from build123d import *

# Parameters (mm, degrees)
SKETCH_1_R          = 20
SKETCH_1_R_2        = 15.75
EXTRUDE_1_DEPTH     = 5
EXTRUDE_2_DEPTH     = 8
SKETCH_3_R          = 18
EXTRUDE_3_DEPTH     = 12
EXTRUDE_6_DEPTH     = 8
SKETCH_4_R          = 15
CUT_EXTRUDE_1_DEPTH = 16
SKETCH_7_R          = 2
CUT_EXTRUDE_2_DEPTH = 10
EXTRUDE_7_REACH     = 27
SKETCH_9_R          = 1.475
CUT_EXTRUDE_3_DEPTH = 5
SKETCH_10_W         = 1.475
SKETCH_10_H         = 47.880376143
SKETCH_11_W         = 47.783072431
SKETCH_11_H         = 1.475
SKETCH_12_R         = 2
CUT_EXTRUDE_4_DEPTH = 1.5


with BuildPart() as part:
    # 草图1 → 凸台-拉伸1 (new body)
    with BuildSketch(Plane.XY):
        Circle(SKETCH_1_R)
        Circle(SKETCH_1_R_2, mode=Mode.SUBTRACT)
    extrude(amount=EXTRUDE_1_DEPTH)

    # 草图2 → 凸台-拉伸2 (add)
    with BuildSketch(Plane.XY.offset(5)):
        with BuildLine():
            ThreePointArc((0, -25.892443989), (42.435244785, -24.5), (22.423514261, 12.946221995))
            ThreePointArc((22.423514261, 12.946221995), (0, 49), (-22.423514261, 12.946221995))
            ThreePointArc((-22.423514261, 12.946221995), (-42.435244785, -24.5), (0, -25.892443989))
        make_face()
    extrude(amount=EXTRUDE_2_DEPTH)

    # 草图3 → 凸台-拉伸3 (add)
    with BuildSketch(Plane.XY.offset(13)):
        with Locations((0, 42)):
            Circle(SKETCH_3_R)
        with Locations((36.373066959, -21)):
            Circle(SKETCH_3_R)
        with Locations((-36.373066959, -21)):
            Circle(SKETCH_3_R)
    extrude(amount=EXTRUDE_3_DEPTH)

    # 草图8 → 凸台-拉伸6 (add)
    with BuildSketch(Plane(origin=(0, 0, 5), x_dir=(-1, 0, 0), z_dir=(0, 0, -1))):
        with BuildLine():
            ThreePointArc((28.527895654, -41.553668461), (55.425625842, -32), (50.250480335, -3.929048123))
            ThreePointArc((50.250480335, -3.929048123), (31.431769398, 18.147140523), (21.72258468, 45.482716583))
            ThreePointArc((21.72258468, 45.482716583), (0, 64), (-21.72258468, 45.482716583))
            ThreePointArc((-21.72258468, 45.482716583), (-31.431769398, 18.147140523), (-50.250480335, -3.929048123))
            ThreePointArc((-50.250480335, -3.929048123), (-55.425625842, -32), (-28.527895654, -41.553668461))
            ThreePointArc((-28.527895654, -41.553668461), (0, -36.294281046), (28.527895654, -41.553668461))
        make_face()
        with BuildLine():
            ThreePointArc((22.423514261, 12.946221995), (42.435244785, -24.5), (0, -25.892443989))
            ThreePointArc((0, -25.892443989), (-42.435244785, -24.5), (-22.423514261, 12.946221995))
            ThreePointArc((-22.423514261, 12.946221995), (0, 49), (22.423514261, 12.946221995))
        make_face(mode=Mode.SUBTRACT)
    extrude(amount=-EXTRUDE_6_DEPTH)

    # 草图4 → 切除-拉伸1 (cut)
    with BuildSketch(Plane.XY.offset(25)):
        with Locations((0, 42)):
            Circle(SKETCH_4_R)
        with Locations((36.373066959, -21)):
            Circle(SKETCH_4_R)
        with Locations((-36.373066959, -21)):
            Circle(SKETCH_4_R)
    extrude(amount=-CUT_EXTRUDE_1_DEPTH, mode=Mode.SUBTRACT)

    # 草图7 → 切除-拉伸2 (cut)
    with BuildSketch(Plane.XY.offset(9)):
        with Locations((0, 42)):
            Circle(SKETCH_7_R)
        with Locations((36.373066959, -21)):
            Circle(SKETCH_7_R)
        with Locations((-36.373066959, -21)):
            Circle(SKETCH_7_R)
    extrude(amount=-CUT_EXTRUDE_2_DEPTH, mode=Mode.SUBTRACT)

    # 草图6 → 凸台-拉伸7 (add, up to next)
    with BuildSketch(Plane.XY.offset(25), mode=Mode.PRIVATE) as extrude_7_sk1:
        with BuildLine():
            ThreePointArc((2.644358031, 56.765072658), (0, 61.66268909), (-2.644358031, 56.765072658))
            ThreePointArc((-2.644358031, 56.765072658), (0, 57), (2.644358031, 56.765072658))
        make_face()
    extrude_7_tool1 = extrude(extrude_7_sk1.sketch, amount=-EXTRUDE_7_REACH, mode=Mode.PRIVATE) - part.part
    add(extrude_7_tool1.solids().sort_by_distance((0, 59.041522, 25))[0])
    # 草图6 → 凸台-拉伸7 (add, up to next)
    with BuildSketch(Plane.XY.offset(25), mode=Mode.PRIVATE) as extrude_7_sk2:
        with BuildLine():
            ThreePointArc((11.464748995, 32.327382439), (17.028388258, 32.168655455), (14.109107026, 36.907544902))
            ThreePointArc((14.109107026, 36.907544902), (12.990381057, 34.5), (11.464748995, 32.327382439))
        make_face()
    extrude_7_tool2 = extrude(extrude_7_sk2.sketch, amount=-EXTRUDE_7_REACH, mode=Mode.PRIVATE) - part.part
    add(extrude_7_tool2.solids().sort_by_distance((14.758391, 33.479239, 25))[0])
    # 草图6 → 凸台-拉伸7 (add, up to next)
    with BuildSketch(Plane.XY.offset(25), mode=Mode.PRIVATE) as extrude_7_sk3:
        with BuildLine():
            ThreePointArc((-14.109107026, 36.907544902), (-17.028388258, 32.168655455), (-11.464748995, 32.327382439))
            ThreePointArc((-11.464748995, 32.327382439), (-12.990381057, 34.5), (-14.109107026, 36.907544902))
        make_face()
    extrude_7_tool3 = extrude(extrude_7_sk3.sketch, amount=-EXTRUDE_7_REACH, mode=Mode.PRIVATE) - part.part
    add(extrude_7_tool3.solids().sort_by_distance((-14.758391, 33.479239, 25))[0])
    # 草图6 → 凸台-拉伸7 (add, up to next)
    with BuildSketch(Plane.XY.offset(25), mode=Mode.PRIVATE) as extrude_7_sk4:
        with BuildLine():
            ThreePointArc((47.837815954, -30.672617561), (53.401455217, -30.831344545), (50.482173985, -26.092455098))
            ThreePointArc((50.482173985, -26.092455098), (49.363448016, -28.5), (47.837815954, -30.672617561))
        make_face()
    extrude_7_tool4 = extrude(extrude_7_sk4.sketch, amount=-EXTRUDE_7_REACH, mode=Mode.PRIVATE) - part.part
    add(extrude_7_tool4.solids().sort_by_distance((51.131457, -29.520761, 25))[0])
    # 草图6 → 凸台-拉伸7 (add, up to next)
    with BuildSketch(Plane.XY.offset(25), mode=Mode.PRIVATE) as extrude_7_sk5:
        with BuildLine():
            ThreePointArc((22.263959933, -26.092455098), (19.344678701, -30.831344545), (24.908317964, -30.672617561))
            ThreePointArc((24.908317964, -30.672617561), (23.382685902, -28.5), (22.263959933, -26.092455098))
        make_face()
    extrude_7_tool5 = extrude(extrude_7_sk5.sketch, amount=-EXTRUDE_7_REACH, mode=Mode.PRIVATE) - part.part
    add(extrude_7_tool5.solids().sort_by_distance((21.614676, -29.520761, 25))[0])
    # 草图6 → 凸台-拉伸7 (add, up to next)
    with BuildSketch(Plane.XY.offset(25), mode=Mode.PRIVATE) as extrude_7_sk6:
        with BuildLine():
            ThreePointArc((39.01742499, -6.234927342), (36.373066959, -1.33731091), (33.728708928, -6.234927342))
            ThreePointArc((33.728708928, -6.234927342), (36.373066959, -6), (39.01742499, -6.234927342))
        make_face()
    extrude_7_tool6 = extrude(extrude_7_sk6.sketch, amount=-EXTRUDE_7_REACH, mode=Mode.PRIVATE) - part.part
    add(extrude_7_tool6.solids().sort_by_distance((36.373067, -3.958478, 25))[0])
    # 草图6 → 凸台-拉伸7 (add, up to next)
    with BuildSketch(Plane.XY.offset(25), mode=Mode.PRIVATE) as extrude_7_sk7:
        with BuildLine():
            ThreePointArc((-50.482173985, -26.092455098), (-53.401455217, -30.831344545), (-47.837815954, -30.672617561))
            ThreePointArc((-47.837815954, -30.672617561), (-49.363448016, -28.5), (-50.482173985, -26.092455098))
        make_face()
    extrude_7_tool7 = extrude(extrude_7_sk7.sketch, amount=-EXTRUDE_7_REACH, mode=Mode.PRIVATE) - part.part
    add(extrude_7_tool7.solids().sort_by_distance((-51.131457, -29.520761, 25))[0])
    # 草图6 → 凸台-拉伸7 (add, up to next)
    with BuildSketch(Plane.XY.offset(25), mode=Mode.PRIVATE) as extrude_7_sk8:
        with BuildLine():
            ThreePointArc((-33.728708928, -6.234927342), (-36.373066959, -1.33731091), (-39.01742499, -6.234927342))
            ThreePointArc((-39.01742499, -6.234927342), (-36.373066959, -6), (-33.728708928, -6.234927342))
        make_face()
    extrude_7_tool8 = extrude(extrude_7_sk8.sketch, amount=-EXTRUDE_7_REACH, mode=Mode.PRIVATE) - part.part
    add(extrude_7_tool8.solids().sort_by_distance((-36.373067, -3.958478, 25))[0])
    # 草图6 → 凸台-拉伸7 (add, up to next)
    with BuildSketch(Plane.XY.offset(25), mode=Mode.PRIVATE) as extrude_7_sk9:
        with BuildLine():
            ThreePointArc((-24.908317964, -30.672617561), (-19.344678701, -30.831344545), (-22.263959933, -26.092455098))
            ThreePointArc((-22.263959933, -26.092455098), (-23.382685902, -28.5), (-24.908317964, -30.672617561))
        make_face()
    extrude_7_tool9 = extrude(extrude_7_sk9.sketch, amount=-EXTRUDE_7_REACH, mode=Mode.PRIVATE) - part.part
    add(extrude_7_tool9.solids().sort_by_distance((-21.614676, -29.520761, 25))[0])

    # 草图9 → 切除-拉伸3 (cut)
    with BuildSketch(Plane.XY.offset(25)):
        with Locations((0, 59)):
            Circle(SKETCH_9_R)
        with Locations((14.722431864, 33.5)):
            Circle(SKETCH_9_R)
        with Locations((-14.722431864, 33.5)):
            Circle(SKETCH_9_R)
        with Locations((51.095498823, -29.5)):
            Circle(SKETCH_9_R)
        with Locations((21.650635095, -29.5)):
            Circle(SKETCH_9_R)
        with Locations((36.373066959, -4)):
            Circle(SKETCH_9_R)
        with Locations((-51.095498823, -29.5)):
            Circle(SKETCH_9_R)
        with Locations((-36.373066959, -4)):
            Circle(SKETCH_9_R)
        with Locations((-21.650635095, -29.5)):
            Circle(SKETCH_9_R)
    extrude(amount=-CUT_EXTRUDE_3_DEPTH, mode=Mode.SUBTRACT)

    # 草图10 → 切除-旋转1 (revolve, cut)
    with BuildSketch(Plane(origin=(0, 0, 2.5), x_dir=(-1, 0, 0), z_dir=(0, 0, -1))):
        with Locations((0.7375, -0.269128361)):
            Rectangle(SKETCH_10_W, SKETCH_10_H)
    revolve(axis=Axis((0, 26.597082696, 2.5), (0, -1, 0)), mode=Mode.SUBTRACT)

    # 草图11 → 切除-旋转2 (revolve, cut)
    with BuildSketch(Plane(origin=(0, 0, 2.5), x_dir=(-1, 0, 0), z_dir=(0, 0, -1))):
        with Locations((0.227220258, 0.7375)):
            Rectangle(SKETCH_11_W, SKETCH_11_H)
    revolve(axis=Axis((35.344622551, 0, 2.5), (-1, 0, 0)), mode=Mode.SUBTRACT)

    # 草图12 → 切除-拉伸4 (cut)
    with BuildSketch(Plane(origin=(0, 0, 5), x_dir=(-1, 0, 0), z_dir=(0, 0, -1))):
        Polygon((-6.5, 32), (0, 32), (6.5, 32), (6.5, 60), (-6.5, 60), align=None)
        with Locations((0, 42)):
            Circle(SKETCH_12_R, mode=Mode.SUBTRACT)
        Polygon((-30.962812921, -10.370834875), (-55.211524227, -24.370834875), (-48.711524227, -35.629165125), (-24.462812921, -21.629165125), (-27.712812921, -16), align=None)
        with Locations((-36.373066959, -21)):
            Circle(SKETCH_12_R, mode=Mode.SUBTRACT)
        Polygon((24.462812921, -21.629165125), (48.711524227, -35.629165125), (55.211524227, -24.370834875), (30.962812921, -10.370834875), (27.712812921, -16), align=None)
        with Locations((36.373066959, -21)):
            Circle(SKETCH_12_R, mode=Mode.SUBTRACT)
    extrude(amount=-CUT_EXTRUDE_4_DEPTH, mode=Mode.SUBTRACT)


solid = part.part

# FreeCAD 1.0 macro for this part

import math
import FreeCAD as App
import Part
import Sketcher

V = App.Vector
Q = App.Units.Quantity

doc = App.newDocument("Part")
body = doc.addObject("PartDesign::Body", "Body")

sketch1 = doc.addObject("Sketcher::SketchObject", "Sketch")
body.addObject(sketch1)
sketch1.AttachmentSupport = (doc.XY_Plane, [""])
sketch1.MapMode = "FlatFace"
sketch1.addGeometry([
    Part.Circle(V(0, 0, 0), V(0, 0, 1), 20),
    Part.Circle(V(0, 0, 0), V(0, 0, 1), 16),
], False)
sketch1.addConstraint([
    Sketcher.Constraint("Coincident", 0, 3, -1, 1),
    Sketcher.Constraint("Coincident", 1, 3, -1, 1),
    Sketcher.Constraint("Diameter", 0, Q("40 mm")),
    Sketcher.Constraint("Diameter", 1, Q("31.5 mm")),
])
pad1 = doc.addObject("PartDesign::Pad", "Pad")
body.addObject(pad1)
pad1.Profile = sketch1
pad1.Length = 5

sketch2 = doc.addObject("Sketcher::SketchObject", "Sketch001")
body.addObject(sketch2)
sketch2.AttachmentSupport = (doc.XY_Plane, [""])
sketch2.MapMode = "FlatFace"
sketch2.AttachmentOffset = App.Placement(V(0, 0, 5), App.Rotation())
sketch2.addGeometry([
    Part.ArcOfCircle(Part.Circle(V(21, -12, 0), V(0, 0, 1), 25), math.radians(-146), math.radians(86)),
    Part.ArcOfCircle(Part.Circle(V(0, 24, 0), V(0, 0, 1), 25), math.radians(-26), math.radians(206)),
    Part.ArcOfCircle(Part.Circle(V(-21, -12, 0), V(0, 0, 1), 25), math.radians(94), math.radians(326)),
], False)
sketch2.addConstraint([
    Sketcher.Constraint("Coincident", 0, 2, 1, 1),
    Sketcher.Constraint("Coincident", 1, 2, 2, 1),
    Sketcher.Constraint("Coincident", 2, 2, 0, 1),
    Sketcher.Constraint("Equal", 0, 1),
    Sketcher.Constraint("Equal", 1, 2),
    Sketcher.Constraint("Symmetric", 0, 3, 2, 3, -2),
    Sketcher.Constraint("PointOnObject", 1, 3, -2),
    Sketcher.Constraint("Radius", 0, Q("25 mm")),
    Sketcher.Constraint("DistanceY", 0, 3, -1, 1, Q("12 mm")),
    Sketcher.Constraint("DistanceY", -1, 1, 1, 3, Q("24 mm")),
    Sketcher.Constraint("DistanceX", -1, 1, 0, 3, Q("20.78461 mm")),
])
pad2 = doc.addObject("PartDesign::Pad", "Pad001")
body.addObject(pad2)
pad2.Profile = sketch2
pad2.Length = 8

sketch3 = doc.addObject("Sketcher::SketchObject", "Sketch002")
body.addObject(sketch3)
sketch3.AttachmentSupport = (doc.XY_Plane, [""])
sketch3.MapMode = "FlatFace"
sketch3.AttachmentOffset = App.Placement(V(0, 0, 13), App.Rotation())
sketch3.addGeometry([
    Part.Circle(V(0, 42, 0), V(0, 0, 1), 18),
    Part.Circle(V(36, -21, 0), V(0, 0, 1), 18),
    Part.Circle(V(-36, -21, 0), V(0, 0, 1), 18),
], False)
sketch3.addConstraint([
    Sketcher.Constraint("Equal", 0, 1),
    Sketcher.Constraint("Equal", 1, 2),
    Sketcher.Constraint("Symmetric", 1, 3, 2, 3, -2),
    Sketcher.Constraint("PointOnObject", 0, 3, -2),
    Sketcher.Constraint("Diameter", 0, Q("36 mm")),
    Sketcher.Constraint("DistanceY", -1, 1, 0, 3, Q("42 mm")),
    Sketcher.Constraint("DistanceY", 1, 3, -1, 1, Q("21 mm")),
    Sketcher.Constraint("DistanceX", -1, 1, 1, 3, Q("36.373067 mm")),
])
pad3 = doc.addObject("PartDesign::Pad", "Pad002")
body.addObject(pad3)
pad3.Profile = sketch3
pad3.Length = 12

sketch4 = doc.addObject("Sketcher::SketchObject", "Sketch003")
body.addObject(sketch4)
sketch4.AttachmentSupport = (doc.XY_Plane, [""])
sketch4.MapMode = "FlatFace"
sketch4.AttachmentOffset = App.Placement(V(0, 0, 5), App.Rotation())
sketch4.addGeometry([
    Part.ArcOfCircle(Part.Circle(V(-36, -21, 0), V(0, 0, 1), 22), math.radians(129), math.radians(291)),
    Part.ArcOfCircle(Part.Circle(V(-101, 58, 0), V(0, 0, 1), 80), math.radians(-51), math.radians(-9)),
    Part.ArcOfCircle(Part.Circle(V(0, 42, 0), V(0, 0, 1), 22), math.radians(9), math.radians(171)),
    Part.ArcOfCircle(Part.Circle(V(101, 58, 0), V(0, 0, 1), 80), math.radians(-171), math.radians(-129)),
    Part.ArcOfCircle(Part.Circle(V(36, -21, 0), V(0, 0, 1), 22), math.radians(-111), math.radians(51)),
    Part.ArcOfCircle(Part.Circle(V(0, -116, 0), V(0, 0, 1), 80), math.radians(69), math.radians(111)),
    Part.ArcOfCircle(Part.Circle(V(0, 24, 0), V(0, 0, 1), 25), math.radians(-26), math.radians(206)),
    Part.ArcOfCircle(Part.Circle(V(-21, -12, 0), V(0, 0, 1), 25), math.radians(94), math.radians(326)),
    Part.ArcOfCircle(Part.Circle(V(21, -12, 0), V(0, 0, 1), 25), math.radians(-146), math.radians(86)),
], False)
sketch4.addConstraint([
    Sketcher.Constraint("Tangent", 0, 1, 1, 1),
    Sketcher.Constraint("Tangent", 1, 2, 2, 2),
    Sketcher.Constraint("Tangent", 2, 1, 3, 1),
    Sketcher.Constraint("Tangent", 3, 2, 4, 2),
    Sketcher.Constraint("Tangent", 4, 1, 5, 1),
    Sketcher.Constraint("Tangent", 5, 2, 0, 2),
    Sketcher.Constraint("Coincident", 6, 2, 7, 1),
    Sketcher.Constraint("Coincident", 7, 2, 8, 1),
    Sketcher.Constraint("Coincident", 8, 2, 6, 1),
    Sketcher.Constraint("Equal", 0, 2),
    Sketcher.Constraint("Equal", 1, 3),
    Sketcher.Constraint("Equal", 2, 4),
    Sketcher.Constraint("Equal", 3, 5),
    Sketcher.Constraint("Equal", 6, 7),
    Sketcher.Constraint("Equal", 7, 8),
    Sketcher.Constraint("Symmetric", 1, 3, 3, 3, -2),
    Sketcher.Constraint("Symmetric", 7, 3, 8, 3, -2),
    Sketcher.Constraint("PointOnObject", 5, 3, -2),
    Sketcher.Constraint("PointOnObject", 6, 3, -2),
    Sketcher.Constraint("Radius", 0, Q("22 mm")),
    Sketcher.Constraint("Radius", 1, Q("80 mm")),
    Sketcher.Constraint("Radius", 6, Q("25 mm")),
    Sketcher.Constraint("DistanceY", 0, 3, -1, 1, Q("21 mm")),
    Sketcher.Constraint("DistanceY", -1, 1, 2, 3, Q("42 mm")),
    Sketcher.Constraint("DistanceY", -1, 1, 6, 3, Q("24 mm")),
    Sketcher.Constraint("DistanceY", 7, 3, -1, 1, Q("12 mm")),
    Sketcher.Constraint("DistanceX", 1, 3, -1, 1, Q("100.713802 mm")),
    Sketcher.Constraint("DistanceX", 7, 3, -1, 1, Q("20.78461 mm")),
])
pad4 = doc.addObject("PartDesign::Pad", "Pad003")
body.addObject(pad4)
pad4.Profile = sketch4
pad4.Length = 8

sketch5 = doc.addObject("Sketcher::SketchObject", "Sketch004")
body.addObject(sketch5)
sketch5.AttachmentSupport = (doc.XY_Plane, [""])
sketch5.MapMode = "FlatFace"
sketch5.AttachmentOffset = App.Placement(V(0, 0, 25), App.Rotation())
sketch5.addGeometry([
    Part.Circle(V(0, 42, 0), V(0, 0, 1), 15),
    Part.Circle(V(36, -21, 0), V(0, 0, 1), 15),
    Part.Circle(V(-36, -21, 0), V(0, 0, 1), 15),
], False)
sketch5.addConstraint([
    Sketcher.Constraint("Equal", 0, 1),
    Sketcher.Constraint("Equal", 1, 2),
    Sketcher.Constraint("Symmetric", 1, 3, 2, 3, -2),
    Sketcher.Constraint("PointOnObject", 0, 3, -2),
    Sketcher.Constraint("Diameter", 0, Q("30 mm")),
    Sketcher.Constraint("DistanceY", -1, 1, 0, 3, Q("42 mm")),
    Sketcher.Constraint("DistanceY", 1, 3, -1, 1, Q("21 mm")),
    Sketcher.Constraint("DistanceX", -1, 1, 1, 3, Q("36.373067 mm")),
])
pocket1 = doc.addObject("PartDesign::Pocket", "Pocket")
body.addObject(pocket1)
pocket1.Profile = sketch5
pocket1.Length = 16

sketch6 = doc.addObject("Sketcher::SketchObject", "Sketch005")
body.addObject(sketch6)
sketch6.AttachmentSupport = (doc.XY_Plane, [""])
sketch6.MapMode = "FlatFace"
sketch6.AttachmentOffset = App.Placement(V(0, 0, 9), App.Rotation())
sketch6.addGeometry([
    Part.Circle(V(0, 42, 0), V(0, 0, 1), 2),
    Part.Circle(V(36.4, -21, 0), V(0, 0, 1), 2),
    Part.Circle(V(-36.4, -21, 0), V(0, 0, 1), 2),
], False)
sketch6.addConstraint([
    Sketcher.Constraint("Equal", 0, 1),
    Sketcher.Constraint("Equal", 1, 2),
    Sketcher.Constraint("Symmetric", 1, 3, 2, 3, -2),
    Sketcher.Constraint("PointOnObject", 0, 3, -2),
    Sketcher.Constraint("Diameter", 0, Q("4 mm")),
    Sketcher.Constraint("DistanceY", -1, 1, 0, 3, Q("42 mm")),
    Sketcher.Constraint("DistanceY", 1, 3, -1, 1, Q("21 mm")),
    Sketcher.Constraint("DistanceX", -1, 1, 1, 3, Q("36.373067 mm")),
])
pocket2 = doc.addObject("PartDesign::Pocket", "Pocket001")
body.addObject(pocket2)
pocket2.Profile = sketch6
pocket2.Length = 10

sketch7 = doc.addObject("Sketcher::SketchObject", "Sketch006")
body.addObject(sketch7)
sketch7.AttachmentSupport = (doc.XY_Plane, [""])
sketch7.MapMode = "FlatFace"
sketch7.AttachmentOffset = App.Placement(V(0, 0, 25), App.Rotation())
sketch7.addGeometry([
    Part.ArcOfCircle(Part.Circle(V(0, 58.5, 0), V(0, 0, 1), 3.2), math.radians(-33), math.radians(213)),
    Part.ArcOfCircle(Part.Circle(V(0, 42, 0), V(0, 0, 1), 15), math.radians(80), math.radians(100)),
], False)
sketch7.addConstraint([
    Sketcher.Constraint("Coincident", 0, 1, 1, 1),
    Sketcher.Constraint("Coincident", 1, 2, 0, 2),
    Sketcher.Constraint("Symmetric", 0, 1, 1, 2, -2),
    Sketcher.Constraint("Radius", 1, Q("15 mm")),
    Sketcher.Constraint("DistanceY", -1, 1, 1, 3, Q("42 mm")),
    Sketcher.Constraint("DistanceY", -1, 1, 0, 3, Q("58.5 mm")),
    Sketcher.Constraint("Radius", 0, Q("3.162689 mm")),
])
pad5 = doc.addObject("PartDesign::Pad", "Pad004")
body.addObject(pad5)
pad5.Profile = sketch7
pad5.Type = "UpToFirst"
pad5.Reversed = True

sketch8 = doc.addObject("Sketcher::SketchObject", "Sketch007")
body.addObject(sketch8)
sketch8.AttachmentSupport = (doc.XY_Plane, [""])
sketch8.MapMode = "FlatFace"
sketch8.AttachmentOffset = App.Placement(V(0, 0, 25), App.Rotation())
sketch8.addGeometry([
    Part.ArcOfCircle(Part.Circle(V(14.3, 33.8, 0), V(0, 0, 1), 3.2), math.radians(-153), math.radians(93)),
    Part.ArcOfCircle(Part.Circle(V(0, 42, 0), V(0, 0, 1), 15), math.radians(-40), math.radians(-20)),
], False)
sketch8.addConstraint([
    Sketcher.Constraint("Coincident", 0, 1, 1, 1),
    Sketcher.Constraint("Coincident", 1, 2, 0, 2),
    Sketcher.Constraint("PointOnObject", 1, 3, -2),
    Sketcher.Constraint("Radius", 1, Q("15 mm")),
    Sketcher.Constraint("DistanceY", -1, 1, 1, 3, Q("42 mm")),
    Sketcher.Constraint("DistanceY", -1, 1, 0, 3, Q("33.75 mm")),
    Sketcher.Constraint("Radius", 0, Q("3.162689 mm")),
    Sketcher.Constraint("DistanceX", -1, 1, 0, 3, Q("14.289419 mm")),
])
pad6 = doc.addObject("PartDesign::Pad", "Pad005")
body.addObject(pad6)
pad6.Profile = sketch8
pad6.Type = "UpToFirst"
pad6.Reversed = True

sketch9 = doc.addObject("Sketcher::SketchObject", "Sketch008")
body.addObject(sketch9)
sketch9.AttachmentSupport = (doc.XY_Plane, [""])
sketch9.MapMode = "FlatFace"
sketch9.AttachmentOffset = App.Placement(V(0, 0, 25), App.Rotation())
sketch9.addGeometry([
    Part.ArcOfCircle(Part.Circle(V(-14.3, 33.8, 0), V(0, 0, 1), 3.2), math.radians(87), math.radians(333)),
    Part.ArcOfCircle(Part.Circle(V(0, 42, 0), V(0, 0, 1), 15), math.radians(-160), math.radians(-140)),
], False)
sketch9.addConstraint([
    Sketcher.Constraint("Coincident", 0, 1, 1, 1),
    Sketcher.Constraint("Coincident", 1, 2, 0, 2),
    Sketcher.Constraint("PointOnObject", 1, 3, -2),
    Sketcher.Constraint("Radius", 1, Q("15 mm")),
    Sketcher.Constraint("DistanceY", -1, 1, 1, 3, Q("42 mm")),
    Sketcher.Constraint("DistanceY", -1, 1, 0, 3, Q("33.75 mm")),
    Sketcher.Constraint("Radius", 0, Q("3.162689 mm")),
    Sketcher.Constraint("DistanceX", 0, 3, -1, 1, Q("14.289419 mm")),
])
pad7 = doc.addObject("PartDesign::Pad", "Pad006")
body.addObject(pad7)
pad7.Profile = sketch9
pad7.Type = "UpToFirst"
pad7.Reversed = True

sketch10 = doc.addObject("Sketcher::SketchObject", "Sketch009")
body.addObject(sketch10)
sketch10.AttachmentSupport = (doc.XY_Plane, [""])
sketch10.MapMode = "FlatFace"
sketch10.AttachmentOffset = App.Placement(V(0, 0, 25), App.Rotation())
sketch10.addGeometry([
    Part.ArcOfCircle(Part.Circle(V(50.7, -29.2, 0), V(0, 0, 1), 3.2), math.radians(-153), math.radians(93)),
    Part.ArcOfCircle(Part.Circle(V(36.4, -21, 0), V(0, 0, 1), 15), math.radians(-40), math.radians(-20)),
], False)
sketch10.addConstraint([
    Sketcher.Constraint("Coincident", 0, 1, 1, 1),
    Sketcher.Constraint("Coincident", 1, 2, 0, 2),
    Sketcher.Constraint("Radius", 1, Q("15 mm")),
    Sketcher.Constraint("DistanceY", 1, 3, -1, 1, Q("21 mm")),
    Sketcher.Constraint("DistanceY", 0, 3, -1, 1, Q("29.25 mm")),
    Sketcher.Constraint("Radius", 0, Q("3.162689 mm")),
    Sketcher.Constraint("DistanceX", 1, 3, 0, 3, Q("14.289419 mm")),
    Sketcher.Constraint("DistanceX", -1, 1, 0, 3, Q("50.662486 mm")),
])
pad8 = doc.addObject("PartDesign::Pad", "Pad007")
body.addObject(pad8)
pad8.Profile = sketch10
pad8.Type = "UpToFirst"
pad8.Reversed = True

sketch11 = doc.addObject("Sketcher::SketchObject", "Sketch010")
body.addObject(sketch11)
sketch11.AttachmentSupport = (doc.XY_Plane, [""])
sketch11.MapMode = "FlatFace"
sketch11.AttachmentOffset = App.Placement(V(0, 0, 25), App.Rotation())
sketch11.addGeometry([
    Part.ArcOfCircle(Part.Circle(V(22.1, -29.2, 0), V(0, 0, 1), 3.2), math.radians(87), math.radians(333)),
    Part.ArcOfCircle(Part.Circle(V(36.4, -21, 0), V(0, 0, 1), 15), math.radians(-160), math.radians(-140)),
], False)
sketch11.addConstraint([
    Sketcher.Constraint("Coincident", 0, 1, 1, 1),
    Sketcher.Constraint("Coincident", 1, 2, 0, 2),
    Sketcher.Constraint("Radius", 1, Q("15 mm")),
    Sketcher.Constraint("DistanceY", 1, 3, -1, 1, Q("21 mm")),
    Sketcher.Constraint("DistanceY", 0, 3, -1, 1, Q("29.25 mm")),
    Sketcher.Constraint("Radius", 0, Q("3.162689 mm")),
    Sketcher.Constraint("DistanceX", -1, 1, 0, 1, Q("22.26396 mm")),
    Sketcher.Constraint("DistanceX", 0, 3, 1, 3, Q("14.289419 mm")),
])
pad9 = doc.addObject("PartDesign::Pad", "Pad008")
body.addObject(pad9)
pad9.Profile = sketch11
pad9.Type = "UpToFirst"
pad9.Reversed = True

sketch12 = doc.addObject("Sketcher::SketchObject", "Sketch011")
body.addObject(sketch12)
sketch12.AttachmentSupport = (doc.XY_Plane, [""])
sketch12.MapMode = "FlatFace"
sketch12.AttachmentOffset = App.Placement(V(0, 0, 25), App.Rotation())
sketch12.addGeometry([
    Part.ArcOfCircle(Part.Circle(V(36.4, -4.5, 0), V(0, 0, 1), 3.2), math.radians(-33), math.radians(213)),
    Part.ArcOfCircle(Part.Circle(V(36.4, -21, 0), V(0, 0, 1), 15), math.radians(80), math.radians(100)),
], False)
sketch12.addConstraint([
    Sketcher.Constraint("Coincident", 0, 1, 1, 1),
    Sketcher.Constraint("Coincident", 1, 2, 0, 2),
    Sketcher.Constraint("Horizontal", 0, 1, 1, 2),
    Sketcher.Constraint("Radius", 1, Q("15 mm")),
    Sketcher.Constraint("DistanceY", 1, 3, -1, 1, Q("21 mm")),
    Sketcher.Constraint("DistanceY", 0, 3, -1, 1, Q("4.5 mm")),
    Sketcher.Constraint("Radius", 0, Q("3.162689 mm")),
    Sketcher.Constraint("DistanceX", -1, 1, 1, 2, Q("33.728709 mm")),
])
pad10 = doc.addObject("PartDesign::Pad", "Pad009")
body.addObject(pad10)
pad10.Profile = sketch12
pad10.Type = "UpToFirst"
pad10.Reversed = True

sketch13 = doc.addObject("Sketcher::SketchObject", "Sketch012")
body.addObject(sketch13)
sketch13.AttachmentSupport = (doc.XY_Plane, [""])
sketch13.MapMode = "FlatFace"
sketch13.AttachmentOffset = App.Placement(V(0, 0, 25), App.Rotation())
sketch13.addGeometry([
    Part.ArcOfCircle(Part.Circle(V(-50.7, -29.2, 0), V(0, 0, 1), 3.2), math.radians(87), math.radians(333)),
    Part.ArcOfCircle(Part.Circle(V(-36.4, -21, 0), V(0, 0, 1), 15), math.radians(-160), math.radians(-140)),
], False)
sketch13.addConstraint([
    Sketcher.Constraint("Coincident", 0, 1, 1, 1),
    Sketcher.Constraint("Coincident", 1, 2, 0, 2),
    Sketcher.Constraint("Radius", 1, Q("15 mm")),
    Sketcher.Constraint("DistanceY", 1, 3, -1, 1, Q("21 mm")),
    Sketcher.Constraint("DistanceY", 0, 3, -1, 1, Q("29.25 mm")),
    Sketcher.Constraint("Radius", 0, Q("3.162689 mm")),
    Sketcher.Constraint("DistanceX", 0, 3, 1, 3, Q("14.289419 mm")),
    Sketcher.Constraint("DistanceX", 0, 3, -1, 1, Q("50.662486 mm")),
])
pad11 = doc.addObject("PartDesign::Pad", "Pad010")
body.addObject(pad11)
pad11.Profile = sketch13
pad11.Type = "UpToFirst"
pad11.Reversed = True

sketch14 = doc.addObject("Sketcher::SketchObject", "Sketch013")
body.addObject(sketch14)
sketch14.AttachmentSupport = (doc.XY_Plane, [""])
sketch14.MapMode = "FlatFace"
sketch14.AttachmentOffset = App.Placement(V(0, 0, 25), App.Rotation())
sketch14.addGeometry([
    Part.ArcOfCircle(Part.Circle(V(-36.4, -4.5, 0), V(0, 0, 1), 3.2), math.radians(-33), math.radians(213)),
    Part.ArcOfCircle(Part.Circle(V(-36.4, -21, 0), V(0, 0, 1), 15), math.radians(80), math.radians(100)),
], False)
sketch14.addConstraint([
    Sketcher.Constraint("Coincident", 0, 1, 1, 1),
    Sketcher.Constraint("Coincident", 1, 2, 0, 2),
    Sketcher.Constraint("Horizontal", 0, 1, 1, 2),
    Sketcher.Constraint("Radius", 1, Q("15 mm")),
    Sketcher.Constraint("DistanceY", 1, 3, -1, 1, Q("21 mm")),
    Sketcher.Constraint("DistanceY", 0, 3, -1, 1, Q("4.5 mm")),
    Sketcher.Constraint("Radius", 0, Q("3.162689 mm")),
    Sketcher.Constraint("DistanceX", 0, 1, -1, 1, Q("33.728709 mm")),
])
pad12 = doc.addObject("PartDesign::Pad", "Pad011")
body.addObject(pad12)
pad12.Profile = sketch14
pad12.Type = "UpToFirst"
pad12.Reversed = True

sketch15 = doc.addObject("Sketcher::SketchObject", "Sketch014")
body.addObject(sketch15)
sketch15.AttachmentSupport = (doc.XY_Plane, [""])
sketch15.MapMode = "FlatFace"
sketch15.AttachmentOffset = App.Placement(V(0, 0, 25), App.Rotation())
sketch15.addGeometry([
    Part.ArcOfCircle(Part.Circle(V(-22.1, -29.2, 0), V(0, 0, 1), 3.2), math.radians(-153), math.radians(93)),
    Part.ArcOfCircle(Part.Circle(V(-36.4, -21, 0), V(0, 0, 1), 15), math.radians(-40), math.radians(-20)),
], False)
sketch15.addConstraint([
    Sketcher.Constraint("Coincident", 0, 1, 1, 1),
    Sketcher.Constraint("Coincident", 1, 2, 0, 2),
    Sketcher.Constraint("Radius", 1, Q("15 mm")),
    Sketcher.Constraint("DistanceY", 1, 3, -1, 1, Q("21 mm")),
    Sketcher.Constraint("DistanceY", 0, 3, -1, 1, Q("29.25 mm")),
    Sketcher.Constraint("Radius", 0, Q("3.162689 mm")),
    Sketcher.Constraint("DistanceX", 1, 2, -1, 1, Q("22.26396 mm")),
    Sketcher.Constraint("DistanceX", 1, 3, 0, 3, Q("14.289419 mm")),
])
pad13 = doc.addObject("PartDesign::Pad", "Pad012")
body.addObject(pad13)
pad13.Profile = sketch15
pad13.Type = "UpToFirst"
pad13.Reversed = True

sketch16 = doc.addObject("Sketcher::SketchObject", "Sketch015")
body.addObject(sketch16)
sketch16.AttachmentSupport = (doc.XY_Plane, [""])
sketch16.MapMode = "FlatFace"
sketch16.AttachmentOffset = App.Placement(V(0, 0, 25), App.Rotation())
sketch16.addGeometry([
    Part.Circle(V(0, 59, 0), V(0, 0, 1), 1.5),
    Part.Circle(V(14.7, 33.5, 0), V(0, 0, 1), 1.5),
    Part.Circle(V(-14.7, 33.5, 0), V(0, 0, 1), 1.5),
    Part.Circle(V(51.1, -29.5, 0), V(0, 0, 1), 1.5),
    Part.Circle(V(21.7, -29.5, 0), V(0, 0, 1), 1.5),
    Part.Circle(V(36.4, -4, 0), V(0, 0, 1), 1.5),
    Part.Circle(V(-51.1, -29.5, 0), V(0, 0, 1), 1.5),
    Part.Circle(V(-36.4, -4, 0), V(0, 0, 1), 1.5),
    Part.Circle(V(-21.7, -29.5, 0), V(0, 0, 1), 1.5),
], False)
sketch16.addConstraint([
    Sketcher.Constraint("Equal", 0, 1),
    Sketcher.Constraint("Equal", 1, 2),
    Sketcher.Constraint("Equal", 2, 3),
    Sketcher.Constraint("Equal", 3, 4),
    Sketcher.Constraint("Equal", 4, 5),
    Sketcher.Constraint("Equal", 5, 6),
    Sketcher.Constraint("Equal", 6, 7),
    Sketcher.Constraint("Equal", 7, 8),
    Sketcher.Constraint("Symmetric", 1, 3, 2, 3, -2),
    Sketcher.Constraint("Symmetric", 3, 3, 6, 3, -2),
    Sketcher.Constraint("Symmetric", 5, 3, 7, 3, -2),
    Sketcher.Constraint("Symmetric", 4, 3, 8, 3, -2),
    Sketcher.Constraint("PointOnObject", 0, 3, -2),
    Sketcher.Constraint("Horizontal", 3, 3, 4, 3),
    Sketcher.Constraint("Diameter", 0, Q("2.95 mm")),
    Sketcher.Constraint("DistanceY", -1, 1, 0, 3, Q("59 mm")),
    Sketcher.Constraint("DistanceY", 5, 3, -1, 1, Q("4 mm")),
    Sketcher.Constraint("DistanceY", 3, 3, 1, 3, Q("63 mm")),
    Sketcher.Constraint("DistanceY", -1, 1, 1, 3, Q("33.5 mm")),
    Sketcher.Constraint("DistanceX", -1, 1, 3, 3, Q("51.095499 mm")),
    Sketcher.Constraint("DistanceX", 2, 3, 5, 3, Q("51.095499 mm")),
    Sketcher.Constraint("DistanceX", -1, 1, 1, 3, Q("14.722432 mm")),
    Sketcher.Constraint("DistanceX", 4, 3, 5, 3, Q("14.722432 mm")),
])
pocket3 = doc.addObject("PartDesign::Pocket", "Pocket002")
body.addObject(pocket3)
pocket3.Profile = sketch16
pocket3.Length = 5

sketch17 = doc.addObject("Sketcher::SketchObject", "Sketch016")
body.addObject(sketch17)
sketch17.AttachmentSupport = (doc.XY_Plane, [""])
sketch17.MapMode = "FlatFace"
sketch17.AttachmentOffset = App.Placement(V(0, 0, 2.5), App.Rotation())
sketch17.addGeometry([
    Part.LineSegment(V(0, 23.7, 0), V(0, -24.2, 0)),
    Part.LineSegment(V(0, -24.2, 0), V(-1.5, -24.2, 0)),
    Part.LineSegment(V(-1.5, -24.2, 0), V(-1.5, 23.7, 0)),
    Part.LineSegment(V(-1.5, 23.7, 0), V(0, 23.7, 0)),
], False)
sketch17.addConstraint([
    Sketcher.Constraint("Coincident", 0, 2, 1, 1),
    Sketcher.Constraint("Coincident", 1, 2, 2, 1),
    Sketcher.Constraint("Coincident", 2, 2, 3, 1),
    Sketcher.Constraint("Coincident", 3, 2, 0, 1),
    Sketcher.Constraint("Vertical", 0),
    Sketcher.Constraint("Horizontal", 1),
    Sketcher.Constraint("Vertical", 2),
    Sketcher.Constraint("Horizontal", 3),
    Sketcher.Constraint("PointOnObject", 0, 2, -2),
    Sketcher.Constraint("DistanceX", 1, 2, 1, 1, Q("1.475 mm")),
    Sketcher.Constraint("DistanceY", 0, 2, 0, 1, Q("47.880376 mm")),
    Sketcher.Constraint("DistanceY", -1, 1, 2, 2, Q("23.67106 mm")),
])
groove = doc.addObject("PartDesign::Groove", "Groove")
body.addObject(groove)
groove.Profile = sketch17
groove.ReferenceAxis = (sketch17, ["V_Axis"])
groove.Angle = 360

sketch18 = doc.addObject("Sketcher::SketchObject", "Sketch017")
body.addObject(sketch18)
sketch18.AttachmentSupport = (doc.XY_Plane, [""])
sketch18.MapMode = "FlatFace"
sketch18.AttachmentOffset = App.Placement(V(0, 0, 2.5), App.Rotation())
sketch18.addGeometry([
    Part.LineSegment(V(23.7, 1.5, 0), V(23.7, 0, 0)),
    Part.LineSegment(V(23.7, 0, 0), V(-24.1, 0, 0)),
    Part.LineSegment(V(-24.1, 0, 0), V(-24.1, 1.5, 0)),
    Part.LineSegment(V(-24.1, 1.5, 0), V(23.7, 1.5, 0)),
], False)
sketch18.addConstraint([
    Sketcher.Constraint("Coincident", 0, 2, 1, 1),
    Sketcher.Constraint("Coincident", 1, 2, 2, 1),
    Sketcher.Constraint("Coincident", 2, 2, 3, 1),
    Sketcher.Constraint("Coincident", 3, 2, 0, 1),
    Sketcher.Constraint("Vertical", 0),
    Sketcher.Constraint("Horizontal", 1),
    Sketcher.Constraint("Vertical", 2),
    Sketcher.Constraint("Horizontal", 3),
    Sketcher.Constraint("PointOnObject", 0, 2, -1),
    Sketcher.Constraint("DistanceY", 0, 2, 0, 1, Q("1.475 mm")),
    Sketcher.Constraint("DistanceX", 1, 2, 1, 1, Q("47.783072 mm")),
    Sketcher.Constraint("DistanceX", -1, 1, 0, 2, Q("23.664316 mm")),
])
groove2 = doc.addObject("PartDesign::Groove", "Groove001")
body.addObject(groove2)
groove2.Profile = sketch18
groove2.ReferenceAxis = (sketch18, ["H_Axis"])
groove2.Angle = 360

sketch19 = doc.addObject("Sketcher::SketchObject", "Sketch018")
body.addObject(sketch19)
sketch19.AttachmentSupport = (doc.XY_Plane, [""])
sketch19.MapMode = "FlatFace"
sketch19.AttachmentOffset = App.Placement(V(0, 0, 5), App.Rotation())
sketch19.addGeometry([
    Part.LineSegment(V(6.5, 32, 0), V(-6.5, 32, 0)),
    Part.LineSegment(V(-6.5, 32, 0), V(-6.5, 60, 0)),
    Part.LineSegment(V(-6.5, 60, 0), V(6.5, 60, 0)),
    Part.LineSegment(V(6.5, 60, 0), V(6.5, 32, 0)),
    Part.Circle(V(0, 42, 0), V(0, 0, 1), 2),
    Part.LineSegment(V(31, -10.4, 0), V(55.2, -24.4, 0)),
    Part.LineSegment(V(55.2, -24.4, 0), V(48.7, -35.6, 0)),
    Part.LineSegment(V(48.7, -35.6, 0), V(24.5, -21.6, 0)),
    Part.LineSegment(V(24.5, -21.6, 0), V(31, -10.4, 0)),
    Part.Circle(V(36.4, -21, 0), V(0, 0, 1), 2),
    Part.LineSegment(V(-24.5, -21.6, 0), V(-48.7, -35.6, 0)),
    Part.LineSegment(V(-48.7, -35.6, 0), V(-55.2, -24.4, 0)),
    Part.LineSegment(V(-55.2, -24.4, 0), V(-31, -10.4, 0)),
    Part.LineSegment(V(-31, -10.4, 0), V(-24.5, -21.6, 0)),
    Part.Circle(V(-36.4, -21, 0), V(0, 0, 1), 2),
], False)
sketch19.addConstraint([
    Sketcher.Constraint("Coincident", 0, 2, 1, 1),
    Sketcher.Constraint("Coincident", 1, 2, 2, 1),
    Sketcher.Constraint("Coincident", 2, 2, 3, 1),
    Sketcher.Constraint("Coincident", 3, 2, 0, 1),
    Sketcher.Constraint("Coincident", 5, 2, 6, 1),
    Sketcher.Constraint("Coincident", 6, 2, 7, 1),
    Sketcher.Constraint("Coincident", 7, 2, 8, 1),
    Sketcher.Constraint("Coincident", 8, 2, 5, 1),
    Sketcher.Constraint("Coincident", 10, 2, 11, 1),
    Sketcher.Constraint("Coincident", 11, 2, 12, 1),
    Sketcher.Constraint("Coincident", 12, 2, 13, 1),
    Sketcher.Constraint("Coincident", 13, 2, 10, 1),
    Sketcher.Constraint("Horizontal", 0),
    Sketcher.Constraint("Vertical", 1),
    Sketcher.Constraint("Horizontal", 2),
    Sketcher.Constraint("Vertical", 3),
    Sketcher.Constraint("Equal", 4, 9),
    Sketcher.Constraint("Equal", 9, 14),
    Sketcher.Constraint("Symmetric", 9, 3, 14, 3, -2),
    Sketcher.Constraint("Symmetric", 6, 2, 10, 2, -2),
    Sketcher.Constraint("Symmetric", 5, 2, 11, 2, -2),
    Sketcher.Constraint("Symmetric", 8, 2, 12, 2, -2),
    Sketcher.Constraint("Symmetric", 7, 2, 13, 2, -2),
    Sketcher.Constraint("PointOnObject", 4, 3, -2),
    Sketcher.Constraint("Perpendicular", 5, 6),
    Sketcher.Constraint("Perpendicular", 6, 7),
    Sketcher.Constraint("Perpendicular", 7, 8),
    Sketcher.Constraint("Diameter", 4, Q("4 mm")),
    Sketcher.Constraint("DistanceX", 0, 2, 0, 1, Q("13 mm")),
    Sketcher.Constraint("DistanceY", 1, 1, 1, 2, Q("28 mm")),
    Sketcher.Constraint("Angle", 5, Q("-30 deg")),
    Sketcher.Constraint("Distance", 5, Q("28 mm")),
    Sketcher.Constraint("Distance", 6, Q("13 mm")),
    Sketcher.Constraint("DistanceY", -1, 1, 4, 3, Q("42 mm")),
    Sketcher.Constraint("DistanceY", 9, 3, -1, 1, Q("21 mm")),
    Sketcher.Constraint("DistanceY", -1, 1, 0, 2, Q("32 mm")),
    Sketcher.Constraint("DistanceX", 0, 2, -1, 1, Q("6.5 mm")),
    Sketcher.Constraint("DistanceX", 14, 3, 5, 2, Q("91.584591 mm")),
    Sketcher.Constraint("DistanceX", -1, 1, 9, 3, Q("36.373067 mm")),
    Sketcher.Constraint("DistanceY", 5, 2, -1, 1, Q("24.370835 mm")),
])
pocket4 = doc.addObject("PartDesign::Pocket", "Pocket003")
body.addObject(pocket4)
pocket4.Profile = sketch19
pocket4.Length = 1.5
pocket4.Reversed = True

doc.recompute()
